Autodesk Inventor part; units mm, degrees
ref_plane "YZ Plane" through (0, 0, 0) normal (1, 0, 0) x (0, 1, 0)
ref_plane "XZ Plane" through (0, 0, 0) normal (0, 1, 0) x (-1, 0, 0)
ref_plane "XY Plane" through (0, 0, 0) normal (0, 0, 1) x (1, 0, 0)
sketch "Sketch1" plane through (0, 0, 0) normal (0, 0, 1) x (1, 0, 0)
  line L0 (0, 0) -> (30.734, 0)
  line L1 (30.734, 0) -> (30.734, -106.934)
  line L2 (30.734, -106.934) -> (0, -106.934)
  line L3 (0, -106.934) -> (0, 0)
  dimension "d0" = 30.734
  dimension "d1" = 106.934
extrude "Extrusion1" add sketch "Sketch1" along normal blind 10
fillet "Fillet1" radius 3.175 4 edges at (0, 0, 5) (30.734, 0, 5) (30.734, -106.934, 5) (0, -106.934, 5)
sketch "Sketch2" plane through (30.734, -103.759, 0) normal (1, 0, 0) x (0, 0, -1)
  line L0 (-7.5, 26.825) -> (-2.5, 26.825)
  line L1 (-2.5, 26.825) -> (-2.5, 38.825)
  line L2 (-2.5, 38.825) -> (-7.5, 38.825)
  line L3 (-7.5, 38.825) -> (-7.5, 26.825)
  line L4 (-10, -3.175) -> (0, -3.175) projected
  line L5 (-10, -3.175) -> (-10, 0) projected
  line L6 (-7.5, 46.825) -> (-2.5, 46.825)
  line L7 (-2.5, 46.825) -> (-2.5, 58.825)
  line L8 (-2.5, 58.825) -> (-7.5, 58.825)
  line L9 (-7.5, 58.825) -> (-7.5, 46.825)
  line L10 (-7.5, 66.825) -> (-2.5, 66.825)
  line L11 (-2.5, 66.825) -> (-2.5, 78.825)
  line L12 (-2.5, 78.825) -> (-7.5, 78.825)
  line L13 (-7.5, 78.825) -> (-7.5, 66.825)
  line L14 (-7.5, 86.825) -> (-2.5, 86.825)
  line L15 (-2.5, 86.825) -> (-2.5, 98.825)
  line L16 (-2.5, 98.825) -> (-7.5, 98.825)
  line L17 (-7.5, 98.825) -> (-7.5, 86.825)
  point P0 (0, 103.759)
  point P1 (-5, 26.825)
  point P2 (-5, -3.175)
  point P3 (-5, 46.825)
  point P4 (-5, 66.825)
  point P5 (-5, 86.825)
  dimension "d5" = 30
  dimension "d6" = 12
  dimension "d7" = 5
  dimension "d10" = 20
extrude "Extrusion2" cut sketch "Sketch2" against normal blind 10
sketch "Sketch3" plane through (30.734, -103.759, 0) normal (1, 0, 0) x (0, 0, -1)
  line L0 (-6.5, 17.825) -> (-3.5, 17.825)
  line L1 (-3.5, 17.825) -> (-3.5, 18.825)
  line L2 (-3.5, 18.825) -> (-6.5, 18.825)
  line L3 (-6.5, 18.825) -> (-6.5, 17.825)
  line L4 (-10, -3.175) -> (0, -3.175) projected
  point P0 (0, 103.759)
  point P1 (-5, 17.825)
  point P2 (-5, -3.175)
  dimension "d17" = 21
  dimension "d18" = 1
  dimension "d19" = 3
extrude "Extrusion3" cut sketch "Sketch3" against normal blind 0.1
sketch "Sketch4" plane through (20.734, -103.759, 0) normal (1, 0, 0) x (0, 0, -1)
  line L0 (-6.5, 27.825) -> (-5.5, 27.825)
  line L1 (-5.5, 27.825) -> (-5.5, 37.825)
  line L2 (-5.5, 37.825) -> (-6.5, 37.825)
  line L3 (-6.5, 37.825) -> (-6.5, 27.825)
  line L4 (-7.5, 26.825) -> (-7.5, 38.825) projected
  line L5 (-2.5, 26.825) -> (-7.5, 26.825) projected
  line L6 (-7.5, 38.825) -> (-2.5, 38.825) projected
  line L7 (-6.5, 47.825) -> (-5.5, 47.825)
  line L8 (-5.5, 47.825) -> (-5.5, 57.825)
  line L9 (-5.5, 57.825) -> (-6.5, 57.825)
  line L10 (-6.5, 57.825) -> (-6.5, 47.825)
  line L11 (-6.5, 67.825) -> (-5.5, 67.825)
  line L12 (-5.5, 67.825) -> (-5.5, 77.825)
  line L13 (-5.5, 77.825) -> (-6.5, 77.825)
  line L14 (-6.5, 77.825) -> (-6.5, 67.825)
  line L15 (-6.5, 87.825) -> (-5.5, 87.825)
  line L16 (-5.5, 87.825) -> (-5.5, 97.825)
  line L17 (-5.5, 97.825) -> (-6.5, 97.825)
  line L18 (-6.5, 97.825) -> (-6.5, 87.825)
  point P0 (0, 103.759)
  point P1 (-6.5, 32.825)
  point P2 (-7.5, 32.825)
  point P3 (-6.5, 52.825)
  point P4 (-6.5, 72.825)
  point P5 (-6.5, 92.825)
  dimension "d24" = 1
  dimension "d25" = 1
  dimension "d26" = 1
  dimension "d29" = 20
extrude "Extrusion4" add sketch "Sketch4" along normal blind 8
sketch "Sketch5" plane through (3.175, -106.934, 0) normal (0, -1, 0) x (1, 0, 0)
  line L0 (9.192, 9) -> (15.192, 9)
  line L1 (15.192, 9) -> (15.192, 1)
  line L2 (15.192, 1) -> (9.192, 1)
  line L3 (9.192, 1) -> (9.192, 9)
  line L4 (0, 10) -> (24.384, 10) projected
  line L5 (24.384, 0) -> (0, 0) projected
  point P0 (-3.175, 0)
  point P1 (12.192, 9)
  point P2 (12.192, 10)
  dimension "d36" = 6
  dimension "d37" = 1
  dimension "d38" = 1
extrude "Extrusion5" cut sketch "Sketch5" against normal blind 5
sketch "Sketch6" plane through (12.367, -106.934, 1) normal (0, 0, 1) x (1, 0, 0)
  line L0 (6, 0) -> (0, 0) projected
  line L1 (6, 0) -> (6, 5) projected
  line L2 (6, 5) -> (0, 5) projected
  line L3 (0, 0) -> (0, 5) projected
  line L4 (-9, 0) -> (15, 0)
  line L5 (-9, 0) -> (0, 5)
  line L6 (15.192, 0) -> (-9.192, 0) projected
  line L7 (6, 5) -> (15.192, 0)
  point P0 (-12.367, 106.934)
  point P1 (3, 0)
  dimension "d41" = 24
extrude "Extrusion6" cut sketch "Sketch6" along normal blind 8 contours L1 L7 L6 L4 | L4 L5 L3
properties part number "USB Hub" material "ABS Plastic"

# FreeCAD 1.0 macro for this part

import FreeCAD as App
import Part
import Sketcher
from FreeCAD import Vector
Q = App.Units.Quantity


def edges_at(feature, points):
    """Names of the edges that pass closest to the given points."""
    edges = feature.Shape.Edges
    near = lambda p: min(range(len(edges)), key=lambda i: edges[i].distToShape(Part.Vertex(*p))[0])
    return sorted({f"Edge{near(p) + 1}" for p in points})

doc = App.newDocument("Part")
body = doc.addObject("PartDesign::Body", "Body")

sketch1 = doc.addObject("Sketcher::SketchObject", "Sketch")
body.addObject(sketch1)
sketch1.AttachmentSupport = (doc.XY_Plane, [""])
sketch1.MapMode = "FlatFace"
sketch1.addGeometry(Part.LineSegment(Vector(30.734, 0, 0), Vector(0, 0, 0)), False)
sketch1.addGeometry(Part.LineSegment(Vector(0, 0, 0), Vector(0, -106.934, 0)), False)
sketch1.addGeometry(Part.LineSegment(Vector(0, -106.934, 0), Vector(30.734, -106.934, 0)), False)
sketch1.addGeometry(Part.LineSegment(Vector(30.734, -106.934, 0), Vector(30.734, 0, 0)), False)
sketch1.addConstraint(Sketcher.Constraint("Coincident", 0, 2, 1, 1))
sketch1.addConstraint(Sketcher.Constraint("Coincident", 1, 2, 2, 1))
sketch1.addConstraint(Sketcher.Constraint("Coincident", 2, 2, 3, 1))
sketch1.addConstraint(Sketcher.Constraint("Coincident", 3, 2, 0, 1))
sketch1.addConstraint(Sketcher.Constraint("Horizontal", 0))
sketch1.addConstraint(Sketcher.Constraint("Vertical", 1))
sketch1.addConstraint(Sketcher.Constraint("Horizontal", 2))
sketch1.addConstraint(Sketcher.Constraint("Vertical", 3))
sketch1.addConstraint(Sketcher.Constraint("Coincident", 0, 2, -1, 1))
sketch1.addConstraint(Sketcher.Constraint("DistanceX", 0, 2, 0, 1, Q("30.734 mm")))
sketch1.addConstraint(Sketcher.Constraint("DistanceY", 1, 2, 1, 1, Q("106.934 mm")))
pad1 = doc.addObject("PartDesign::Pad", "Pad")
body.addObject(pad1)
pad1.Profile = sketch1
pad1.Length = 10
doc.recompute()

fillet = doc.addObject("PartDesign::Fillet", "Fillet")
body.addObject(fillet)
fillet.Base = (pad1, edges_at(pad1, [
    (0, 0, 5),
    (30.734, 0, 5),
    (30.734, -106.934, 5),
    (0, -106.934, 5),
]))
fillet.Radius = 3.175

sketch2 = doc.addObject("Sketcher::SketchObject", "Sketch001")
body.addObject(sketch2)
sketch2.AttachmentSupport = (doc.YZ_Plane, [""])
sketch2.MapMode = "FlatFace"
sketch2.AttachmentOffset = App.Placement(Vector(0, 0, 30.734), App.Rotation())
sketch2.addGeometry(Part.LineSegment(Vector(-64.934, 7.5, 0), Vector(-76.934, 7.5, 0)), False)
sketch2.addGeometry(Part.LineSegment(Vector(-76.934, 7.5, 0), Vector(-76.934, 2.5, 0)), False)
sketch2.addGeometry(Part.LineSegment(Vector(-76.934, 2.5, 0), Vector(-64.934, 2.5, 0)), False)
sketch2.addGeometry(Part.LineSegment(Vector(-64.934, 2.5, 0), Vector(-64.934, 7.5, 0)), False)
sketch2.addGeometry(Part.LineSegment(Vector(-44.934, 7.5, 0), Vector(-56.934, 7.5, 0)), False)
sketch2.addGeometry(Part.LineSegment(Vector(-56.934, 7.5, 0), Vector(-56.934, 2.5, 0)), False)
sketch2.addGeometry(Part.LineSegment(Vector(-56.934, 2.5, 0), Vector(-44.934, 2.5, 0)), False)
sketch2.addGeometry(Part.LineSegment(Vector(-44.934, 2.5, 0), Vector(-44.934, 7.5, 0)), False)
sketch2.addGeometry(Part.LineSegment(Vector(-24.934, 7.5, 0), Vector(-36.934, 7.5, 0)), False)
sketch2.addGeometry(Part.LineSegment(Vector(-36.934, 7.5, 0), Vector(-36.934, 2.5, 0)), False)
sketch2.addGeometry(Part.LineSegment(Vector(-36.934, 2.5, 0), Vector(-24.934, 2.5, 0)), False)
sketch2.addGeometry(Part.LineSegment(Vector(-24.934, 2.5, 0), Vector(-24.934, 7.5, 0)), False)
sketch2.addGeometry(Part.LineSegment(Vector(-4.934, 7.5, 0), Vector(-16.934, 7.5, 0)), False)
sketch2.addGeometry(Part.LineSegment(Vector(-16.934, 7.5, 0), Vector(-16.934, 2.5, 0)), False)
sketch2.addGeometry(Part.LineSegment(Vector(-16.934, 2.5, 0), Vector(-4.934, 2.5, 0)), False)
sketch2.addGeometry(Part.LineSegment(Vector(-4.934, 2.5, 0), Vector(-4.934, 7.5, 0)), False)
sketch2.addConstraint(Sketcher.Constraint("Coincident", 0, 2, 1, 1))
sketch2.addConstraint(Sketcher.Constraint("Coincident", 1, 2, 2, 1))
sketch2.addConstraint(Sketcher.Constraint("Coincident", 2, 2, 3, 1))
sketch2.addConstraint(Sketcher.Constraint("Coincident", 3, 2, 0, 1))
sketch2.addConstraint(Sketcher.Constraint("Coincident", 4, 2, 5, 1))
sketch2.addConstraint(Sketcher.Constraint("Coincident", 5, 2, 6, 1))
sketch2.addConstraint(Sketcher.Constraint("Coincident", 6, 2, 7, 1))
sketch2.addConstraint(Sketcher.Constraint("Coincident", 7, 2, 4, 1))
sketch2.addConstraint(Sketcher.Constraint("Coincident", 8, 2, 9, 1))
sketch2.addConstraint(Sketcher.Constraint("Coincident", 9, 2, 10, 1))
sketch2.addConstraint(Sketcher.Constraint("Coincident", 10, 2, 11, 1))
sketch2.addConstraint(Sketcher.Constraint("Coincident", 11, 2, 8, 1))
sketch2.addConstraint(Sketcher.Constraint("Coincident", 12, 2, 13, 1))
sketch2.addConstraint(Sketcher.Constraint("Coincident", 13, 2, 14, 1))
sketch2.addConstraint(Sketcher.Constraint("Coincident", 14, 2, 15, 1))
sketch2.addConstraint(Sketcher.Constraint("Coincident", 15, 2, 12, 1))
sketch2.addConstraint(Sketcher.Constraint("Horizontal", 0))
sketch2.addConstraint(Sketcher.Constraint("Vertical", 1))
sketch2.addConstraint(Sketcher.Constraint("Horizontal", 2))
sketch2.addConstraint(Sketcher.Constraint("Vertical", 3))
sketch2.addConstraint(Sketcher.Constraint("Horizontal", 4))
sketch2.addConstraint(Sketcher.Constraint("Vertical", 5))
sketch2.addConstraint(Sketcher.Constraint("Horizontal", 6))
sketch2.addConstraint(Sketcher.Constraint("Vertical", 7))
sketch2.addConstraint(Sketcher.Constraint("Horizontal", 8))
sketch2.addConstraint(Sketcher.Constraint("Vertical", 9))
sketch2.addConstraint(Sketcher.Constraint("Horizontal", 10))
sketch2.addConstraint(Sketcher.Constraint("Vertical", 11))
sketch2.addConstraint(Sketcher.Constraint("Horizontal", 12))
sketch2.addConstraint(Sketcher.Constraint("Vertical", 13))
sketch2.addConstraint(Sketcher.Constraint("Horizontal", 14))
sketch2.addConstraint(Sketcher.Constraint("Vertical", 15))
sketch2.addConstraint(Sketcher.Constraint("Horizontal", 3, 2, 4, 2))
sketch2.addConstraint(Sketcher.Constraint("Horizontal", 2, 2, 5, 2))
sketch2.addConstraint(Sketcher.Constraint("Horizontal", 7, 2, 8, 2))
sketch2.addConstraint(Sketcher.Constraint("Horizontal", 6, 2, 9, 2))
sketch2.addConstraint(Sketcher.Constraint("Horizontal", 11, 2, 12, 2))
sketch2.addConstraint(Sketcher.Constraint("Horizontal", 10, 2, 13, 2))
sketch2.addConstraint(Sketcher.Constraint("Equal", 2, 4))
sketch2.addConstraint(Sketcher.Constraint("Equal", 6, 8))
sketch2.addConstraint(Sketcher.Constraint("Equal", 10, 12))
sketch2.addConstraint(Sketcher.Constraint("DistanceX", 0, 2, 0, 1, Q("12 mm")))
sketch2.addConstraint(Sketcher.Constraint("DistanceY", 1, 2, 1, 1, Q("5 mm")))
sketch2.addConstraint(Sketcher.Constraint("DistanceX", 0, 2, 4, 2, Q("20 mm")))
sketch2.addConstraint(Sketcher.Constraint("DistanceX", 4, 2, 8, 2, Q("20 mm")))
sketch2.addConstraint(Sketcher.Constraint("DistanceX", 8, 2, 12, 2, Q("20 mm")))
sketch2.addConstraint(Sketcher.Constraint("DistanceY", -1, 1, 0, 2, Q("7.5 mm")))
sketch2.addConstraint(Sketcher.Constraint("DistanceX", 0, 2, -1, 1, Q("76.934 mm")))
pocket1 = doc.addObject("PartDesign::Pocket", "Pocket")
body.addObject(pocket1)
pocket1.Profile = sketch2
pocket1.Length = 10

sketch3 = doc.addObject("Sketcher::SketchObject", "Sketch002")
body.addObject(sketch3)
sketch3.AttachmentSupport = (doc.YZ_Plane, [""])
sketch3.MapMode = "FlatFace"
sketch3.AttachmentOffset = App.Placement(Vector(0, 0, 30.734), App.Rotation())
sketch3.addGeometry(Part.LineSegment(Vector(-84.934, 6.5, 0), Vector(-85.934, 6.5, 0)), False)
sketch3.addGeometry(Part.LineSegment(Vector(-85.934, 6.5, 0), Vector(-85.934, 3.5, 0)), False)
sketch3.addGeometry(Part.LineSegment(Vector(-85.934, 3.5, 0), Vector(-84.934, 3.5, 0)), False)
sketch3.addGeometry(Part.LineSegment(Vector(-84.934, 3.5, 0), Vector(-84.934, 6.5, 0)), False)
sketch3.addConstraint(Sketcher.Constraint("Coincident", 0, 2, 1, 1))
sketch3.addConstraint(Sketcher.Constraint("Coincident", 1, 2, 2, 1))
sketch3.addConstraint(Sketcher.Constraint("Coincident", 2, 2, 3, 1))
sketch3.addConstraint(Sketcher.Constraint("Coincident", 3, 2, 0, 1))
sketch3.addConstraint(Sketcher.Constraint("Horizontal", 0))
sketch3.addConstraint(Sketcher.Constraint("Vertical", 1))
sketch3.addConstraint(Sketcher.Constraint("Horizontal", 2))
sketch3.addConstraint(Sketcher.Constraint("Vertical", 3))
sketch3.addConstraint(Sketcher.Constraint("DistanceX", 0, 2, 0, 1, Q("1 mm")))
sketch3.addConstraint(Sketcher.Constraint("DistanceY", 1, 2, 1, 1, Q("3 mm")))
sketch3.addConstraint(Sketcher.Constraint("DistanceY", -1, 1, 0, 2, Q("6.5 mm")))
sketch3.addConstraint(Sketcher.Constraint("DistanceX", 0, 2, -1, 1, Q("85.934 mm")))
pocket2 = doc.addObject("PartDesign::Pocket", "Pocket001")
body.addObject(pocket2)
pocket2.Profile = sketch3
pocket2.Length = 0.1

sketch4 = doc.addObject("Sketcher::SketchObject", "Sketch003")
body.addObject(sketch4)
sketch4.AttachmentSupport = (doc.YZ_Plane, [""])
sketch4.MapMode = "FlatFace"
sketch4.AttachmentOffset = App.Placement(Vector(0, 0, 20.734), App.Rotation())
sketch4.addGeometry(Part.LineSegment(Vector(-65.934, 6.5, 0), Vector(-75.934, 6.5, 0)), False)
sketch4.addGeometry(Part.LineSegment(Vector(-75.934, 6.5, 0), Vector(-75.934, 5.5, 0)), False)
sketch4.addGeometry(Part.LineSegment(Vector(-75.934, 5.5, 0), Vector(-65.934, 5.5, 0)), False)
sketch4.addGeometry(Part.LineSegment(Vector(-65.934, 5.5, 0), Vector(-65.934, 6.5, 0)), False)
sketch4.addGeometry(Part.LineSegment(Vector(-45.934, 6.5, 0), Vector(-55.934, 6.5, 0)), False)
sketch4.addGeometry(Part.LineSegment(Vector(-55.934, 6.5, 0), Vector(-55.934, 5.5, 0)), False)
sketch4.addGeometry(Part.LineSegment(Vector(-55.934, 5.5, 0), Vector(-45.934, 5.5, 0)), False)
sketch4.addGeometry(Part.LineSegment(Vector(-45.934, 5.5, 0), Vector(-45.934, 6.5, 0)), False)
sketch4.addGeometry(Part.LineSegment(Vector(-25.934, 6.5, 0), Vector(-35.934, 6.5, 0)), False)
sketch4.addGeometry(Part.LineSegment(Vector(-35.934, 6.5, 0), Vector(-35.934, 5.5, 0)), False)
sketch4.addGeometry(Part.LineSegment(Vector(-35.934, 5.5, 0), Vector(-25.934, 5.5, 0)), False)
sketch4.addGeometry(Part.LineSegment(Vector(-25.934, 5.5, 0), Vector(-25.934, 6.5, 0)), False)
sketch4.addGeometry(Part.LineSegment(Vector(-5.934, 6.5, 0), Vector(-15.934, 6.5, 0)), False)
sketch4.addGeometry(Part.LineSegment(Vector(-15.934, 6.5, 0), Vector(-15.934, 5.5, 0)), False)
sketch4.addGeometry(Part.LineSegment(Vector(-15.934, 5.5, 0), Vector(-5.934, 5.5, 0)), False)
sketch4.addGeometry(Part.LineSegment(Vector(-5.934, 5.5, 0), Vector(-5.934, 6.5, 0)), False)
sketch4.addConstraint(Sketcher.Constraint("Coincident", 0, 2, 1, 1))
sketch4.addConstraint(Sketcher.Constraint("Coincident", 1, 2, 2, 1))
sketch4.addConstraint(Sketcher.Constraint("Coincident", 2, 2, 3, 1))
sketch4.addConstraint(Sketcher.Constraint("Coincident", 3, 2, 0, 1))
sketch4.addConstraint(Sketcher.Constraint("Coincident", 4, 2, 5, 1))
sketch4.addConstraint(Sketcher.Constraint("Coincident", 5, 2, 6, 1))
sketch4.addConstraint(Sketcher.Constraint("Coincident", 6, 2, 7, 1))
sketch4.addConstraint(Sketcher.Constraint("Coincident", 7, 2, 4, 1))
sketch4.addConstraint(Sketcher.Constraint("Coincident", 8, 2, 9, 1))
sketch4.addConstraint(Sketcher.Constraint("Coincident", 9, 2, 10, 1))
sketch4.addConstraint(Sketcher.Constraint("Coincident", 10, 2, 11, 1))
sketch4.addConstraint(Sketcher.Constraint("Coincident", 11, 2, 8, 1))
sketch4.addConstraint(Sketcher.Constraint("Coincident", 12, 2, 13, 1))
sketch4.addConstraint(Sketcher.Constraint("Coincident", 13, 2, 14, 1))
sketch4.addConstraint(Sketcher.Constraint("Coincident", 14, 2, 15, 1))
sketch4.addConstraint(Sketcher.Constraint("Coincident", 15, 2, 12, 1))
sketch4.addConstraint(Sketcher.Constraint("Horizontal", 0))
sketch4.addConstraint(Sketcher.Constraint("Vertical", 1))
sketch4.addConstraint(Sketcher.Constraint("Horizontal", 2))
sketch4.addConstraint(Sketcher.Constraint("Vertical", 3))
sketch4.addConstraint(Sketcher.Constraint("Horizontal", 4))
sketch4.addConstraint(Sketcher.Constraint("Vertical", 5))
sketch4.addConstraint(Sketcher.Constraint("Horizontal", 6))
sketch4.addConstraint(Sketcher.Constraint("Vertical", 7))
sketch4.addConstraint(Sketcher.Constraint("Horizontal", 8))
sketch4.addConstraint(Sketcher.Constraint("Vertical", 9))
sketch4.addConstraint(Sketcher.Constraint("Horizontal", 10))
sketch4.addConstraint(Sketcher.Constraint("Vertical", 11))
sketch4.addConstraint(Sketcher.Constraint("Horizontal", 12))
sketch4.addConstraint(Sketcher.Constraint("Vertical", 13))
sketch4.addConstraint(Sketcher.Constraint("Horizontal", 14))
sketch4.addConstraint(Sketcher.Constraint("Vertical", 15))
sketch4.addConstraint(Sketcher.Constraint("Horizontal", 3, 2, 4, 2))
sketch4.addConstraint(Sketcher.Constraint("Horizontal", 2, 2, 5, 2))
sketch4.addConstraint(Sketcher.Constraint("Horizontal", 7, 2, 8, 2))
sketch4.addConstraint(Sketcher.Constraint("Horizontal", 6, 2, 9, 2))
sketch4.addConstraint(Sketcher.Constraint("Horizontal", 11, 2, 12, 2))
sketch4.addConstraint(Sketcher.Constraint("Horizontal", 10, 2, 13, 2))
sketch4.addConstraint(Sketcher.Constraint("Equal", 2, 4))
sketch4.addConstraint(Sketcher.Constraint("Equal", 6, 8))
sketch4.addConstraint(Sketcher.Constraint("Equal", 10, 12))
sketch4.addConstraint(Sketcher.Constraint("DistanceX", 0, 2, 0, 1, Q("10 mm")))
sketch4.addConstraint(Sketcher.Constraint("DistanceY", 1, 2, 1, 1, Q("1 mm")))
sketch4.addConstraint(Sketcher.Constraint("DistanceX", 3, 2, 4, 2, Q("10 mm")))
sketch4.addConstraint(Sketcher.Constraint("DistanceX", 7, 2, 8, 2, Q("10 mm")))
sketch4.addConstraint(Sketcher.Constraint("DistanceX", 11, 2, 12, 2, Q("10 mm")))
sketch4.addConstraint(Sketcher.Constraint("DistanceY", -1, 1, 0, 2, Q("6.5 mm")))
sketch4.addConstraint(Sketcher.Constraint("DistanceX", 0, 2, -1, 1, Q("75.934 mm")))
pad2 = doc.addObject("PartDesign::Pad", "Pad001")
body.addObject(pad2)
pad2.Profile = sketch4
pad2.Length = 8

sketch5 = doc.addObject("Sketcher::SketchObject", "Sketch004")
body.addObject(sketch5)
sketch5.AttachmentSupport = (doc.XZ_Plane, [""])
sketch5.MapMode = "FlatFace"
sketch5.AttachmentOffset = App.Placement(Vector(0, 0, 106.934), App.Rotation())
sketch5.addGeometry(Part.LineSegment(Vector(18.367, 9, 0), Vector(12.367, 9, 0)), False)
sketch5.addGeometry(Part.LineSegment(Vector(12.367, 9, 0), Vector(12.367, 1, 0)), False)
sketch5.addGeometry(Part.LineSegment(Vector(12.367, 1, 0), Vector(18.367, 1, 0)), False)
sketch5.addGeometry(Part.LineSegment(Vector(18.367, 1, 0), Vector(18.367, 9, 0)), False)
sketch5.addConstraint(Sketcher.Constraint("Coincident", 0, 2, 1, 1))
sketch5.addConstraint(Sketcher.Constraint("Coincident", 1, 2, 2, 1))
sketch5.addConstraint(Sketcher.Constraint("Coincident", 2, 2, 3, 1))
sketch5.addConstraint(Sketcher.Constraint("Coincident", 3, 2, 0, 1))
sketch5.addConstraint(Sketcher.Constraint("Horizontal", 0))
sketch5.addConstraint(Sketcher.Constraint("Vertical", 1))
sketch5.addConstraint(Sketcher.Constraint("Horizontal", 2))
sketch5.addConstraint(Sketcher.Constraint("Vertical", 3))
sketch5.addConstraint(Sketcher.Constraint("DistanceX", 0, 2, 0, 1, Q("6 mm")))
sketch5.addConstraint(Sketcher.Constraint("DistanceY", -1, 1, 1, 2, Q("1 mm")))
sketch5.addConstraint(Sketcher.Constraint("DistanceY", 1, 2, 1, 1, Q("8 mm")))
sketch5.addConstraint(Sketcher.Constraint("DistanceX", -1, 1, 0, 2, Q("12.367 mm")))
pocket3 = doc.addObject("PartDesign::Pocket", "Pocket002")
body.addObject(pocket3)
pocket3.Profile = sketch5
pocket3.Length = 5

sketch6 = doc.addObject("Sketcher::SketchObject", "Sketch005")
body.addObject(sketch6)
sketch6.AttachmentSupport = (doc.XY_Plane, [""])
sketch6.MapMode = "FlatFace"
sketch6.AttachmentOffset = App.Placement(Vector(0, 0, 1), App.Rotation())
sketch6.addGeometry(Part.LineSegment(Vector(18.367, -101.934, 0), Vector(18.367, -106.934, 0)), False)
sketch6.addGeometry(Part.LineSegment(Vector(18.367, -106.934, 0), Vector(27.559, -106.934, 0)), False)
sketch6.addGeometry(Part.LineSegment(Vector(27.559, -106.934, 0), Vector(18.367, -101.934, 0)), False)
sketch6.addGeometry(Part.LineSegment(Vector(3.367, -106.934, 0), Vector(12.367, -106.934, 0)), False)
sketch6.addGeometry(Part.LineSegment(Vector(12.367, -106.934, 0), Vector(12.367, -101.934, 0)), False)
sketch6.addGeometry(Part.LineSegment(Vector(12.367, -101.934, 0), Vector(3.367, -106.934, 0)), False)
sketch6.addConstraint(Sketcher.Constraint("Coincident", 0, 2, 1, 1))
sketch6.addConstraint(Sketcher.Constraint("Coincident", 1, 2, 2, 1))
sketch6.addConstraint(Sketcher.Constraint("Coincident", 2, 2, 0, 1))
sketch6.addConstraint(Sketcher.Constraint("Coincident", 3, 2, 4, 1))
sketch6.addConstraint(Sketcher.Constraint("Coincident", 4, 2, 5, 1))
sketch6.addConstraint(Sketcher.Constraint("Coincident", 5, 2, 3, 1))
sketch6.addConstraint(Sketcher.Constraint("Vertical", 0))
sketch6.addConstraint(Sketcher.Constraint("Horizontal", 1))
sketch6.addConstraint(Sketcher.Constraint("Horizontal", 3))
sketch6.addConstraint(Sketcher.Constraint("Vertical", 4))
sketch6.addConstraint(Sketcher.Constraint("Horizontal", 1, 2, 3, 2))
sketch6.addConstraint(Sketcher.Constraint("Horizontal", 2, 2, 4, 2))
sketch6.addConstraint(Sketcher.Constraint("DistanceX", 3, 1, 3, 2, Q("9 mm")))
sketch6.addConstraint(Sketcher.Constraint("DistanceY", 0, 2, 0, 1, Q("5 mm")))
sketch6.addConstraint(Sketcher.Constraint("DistanceX", 3, 2, 0, 2, Q("6 mm")))
sketch6.addConstraint(Sketcher.Constraint("DistanceX", 1, 1, 1, 2, Q("9.192 mm")))
sketch6.addConstraint(Sketcher.Constraint("DistanceX", -1, 1, 0, 2, Q("18.367 mm")))
sketch6.addConstraint(Sketcher.Constraint("DistanceY", 0, 2, -1, 1, Q("106.934 mm")))
pocket4 = doc.addObject("PartDesign::Pocket", "Pocket003")
body.addObject(pocket4)
pocket4.Profile = sketch6
pocket4.Length = 8
pocket4.Reversed = True

doc.recompute()
